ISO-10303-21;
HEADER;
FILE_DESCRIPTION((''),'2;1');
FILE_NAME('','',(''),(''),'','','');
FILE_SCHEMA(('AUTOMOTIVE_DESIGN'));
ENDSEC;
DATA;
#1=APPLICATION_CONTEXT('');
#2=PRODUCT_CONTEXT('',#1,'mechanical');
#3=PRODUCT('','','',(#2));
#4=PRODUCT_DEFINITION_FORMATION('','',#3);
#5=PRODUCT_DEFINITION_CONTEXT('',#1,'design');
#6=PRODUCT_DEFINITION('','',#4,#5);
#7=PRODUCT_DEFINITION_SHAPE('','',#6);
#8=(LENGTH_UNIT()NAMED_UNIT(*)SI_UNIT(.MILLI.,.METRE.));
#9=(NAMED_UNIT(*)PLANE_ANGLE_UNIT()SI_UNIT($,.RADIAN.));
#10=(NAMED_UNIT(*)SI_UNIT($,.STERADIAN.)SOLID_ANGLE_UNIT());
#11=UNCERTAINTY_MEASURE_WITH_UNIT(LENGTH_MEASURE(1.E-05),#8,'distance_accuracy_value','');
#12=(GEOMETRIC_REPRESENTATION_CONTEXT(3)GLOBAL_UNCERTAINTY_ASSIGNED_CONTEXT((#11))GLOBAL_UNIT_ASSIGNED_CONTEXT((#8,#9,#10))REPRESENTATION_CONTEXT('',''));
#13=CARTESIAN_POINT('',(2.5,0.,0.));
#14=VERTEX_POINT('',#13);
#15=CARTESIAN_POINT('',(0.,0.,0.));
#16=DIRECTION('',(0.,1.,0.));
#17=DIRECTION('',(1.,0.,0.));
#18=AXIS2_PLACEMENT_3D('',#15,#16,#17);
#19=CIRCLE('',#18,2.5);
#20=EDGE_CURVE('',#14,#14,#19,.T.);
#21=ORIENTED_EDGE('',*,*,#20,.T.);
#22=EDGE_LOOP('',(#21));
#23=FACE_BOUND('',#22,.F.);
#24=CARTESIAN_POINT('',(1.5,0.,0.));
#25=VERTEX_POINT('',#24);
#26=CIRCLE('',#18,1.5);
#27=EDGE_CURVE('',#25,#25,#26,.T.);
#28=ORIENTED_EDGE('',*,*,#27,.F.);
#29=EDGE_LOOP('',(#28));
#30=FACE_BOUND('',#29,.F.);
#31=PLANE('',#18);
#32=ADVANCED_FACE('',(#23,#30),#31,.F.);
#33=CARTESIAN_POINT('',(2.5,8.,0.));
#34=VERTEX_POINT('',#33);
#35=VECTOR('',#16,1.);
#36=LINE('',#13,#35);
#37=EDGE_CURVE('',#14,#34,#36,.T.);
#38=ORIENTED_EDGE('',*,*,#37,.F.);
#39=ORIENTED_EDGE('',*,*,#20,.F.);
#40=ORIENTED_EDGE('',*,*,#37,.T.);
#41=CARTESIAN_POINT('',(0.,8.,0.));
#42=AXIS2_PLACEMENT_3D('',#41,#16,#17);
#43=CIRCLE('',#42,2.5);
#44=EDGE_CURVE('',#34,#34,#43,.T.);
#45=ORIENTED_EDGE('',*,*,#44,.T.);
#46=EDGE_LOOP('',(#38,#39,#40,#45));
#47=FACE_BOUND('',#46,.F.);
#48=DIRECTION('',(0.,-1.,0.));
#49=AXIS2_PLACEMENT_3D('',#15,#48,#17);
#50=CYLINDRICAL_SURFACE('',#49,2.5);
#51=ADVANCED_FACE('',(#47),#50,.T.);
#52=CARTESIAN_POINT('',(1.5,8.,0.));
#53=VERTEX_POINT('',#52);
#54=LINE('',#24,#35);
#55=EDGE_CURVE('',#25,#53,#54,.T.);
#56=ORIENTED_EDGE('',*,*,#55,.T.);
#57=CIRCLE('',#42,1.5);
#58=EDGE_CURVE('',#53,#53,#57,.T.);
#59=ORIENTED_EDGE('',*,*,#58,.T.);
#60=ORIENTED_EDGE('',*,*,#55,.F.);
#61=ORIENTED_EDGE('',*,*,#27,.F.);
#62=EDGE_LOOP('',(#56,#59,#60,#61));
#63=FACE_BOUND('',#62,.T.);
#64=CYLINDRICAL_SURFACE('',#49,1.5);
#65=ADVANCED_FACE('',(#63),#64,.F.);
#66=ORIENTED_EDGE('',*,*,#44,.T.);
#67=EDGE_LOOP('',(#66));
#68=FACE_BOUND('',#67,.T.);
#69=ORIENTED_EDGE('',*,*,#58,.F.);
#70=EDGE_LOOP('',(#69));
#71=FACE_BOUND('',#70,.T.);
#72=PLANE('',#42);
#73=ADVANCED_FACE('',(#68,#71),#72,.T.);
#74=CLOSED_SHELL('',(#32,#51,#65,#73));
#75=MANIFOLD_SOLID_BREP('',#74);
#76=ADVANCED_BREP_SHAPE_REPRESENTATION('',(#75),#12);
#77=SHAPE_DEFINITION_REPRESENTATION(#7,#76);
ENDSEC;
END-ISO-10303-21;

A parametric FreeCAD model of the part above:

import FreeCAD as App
import Part
import Sketcher

V = App.Vector
Q = App.Units.Quantity

doc = App.newDocument("Part")
params = doc.addObject("Spreadsheet::Sheet", "Params")
for row, (alias, value) in enumerate([
    ("sketch1_diameter", "5 mm"),
    ("sketch1_diameter2", "3 mm"),
    ("pad1_length", "8 mm"),
], start=1):
    params.set(f"A{row}", alias)
    params.set(f"B{row}", "=" + value)
    params.setAlias(f"B{row}", alias)

body = doc.addObject("PartDesign::Body", "Body")

# Sketch on XZ plane
sketch1 = body.newObject("Sketcher::SketchObject", "Sketch")
sketch1.AttachmentSupport = (doc.getObject("XZ_Plane"), [""])
sketch1.MapMode = "FlatFace"
sketch1.addGeometry(Part.Circle(V(0, 0, 0), V(0, 0, 1), 2.5), False)
sketch1.addGeometry(Part.Circle(V(0, 0, 0), V(0, 0, 1), 1.5), False)
sketch1.addConstraint(Sketcher.Constraint("Coincident", 0, 3, -1, 1))
sketch1.addConstraint(Sketcher.Constraint("Coincident", 1, 3, -1, 1))
sketch1.addConstraint(Sketcher.Constraint("Diameter", 0, Q("5 mm")))
sketch1.addConstraint(Sketcher.Constraint("Diameter", 1, Q("3 mm")))
sketch1.setExpression("Constraints[2]", "Params.sketch1_diameter")
sketch1.setExpression("Constraints[3]", "Params.sketch1_diameter2")
pad1 = body.newObject("PartDesign::Pad", "Pad")
pad1.Profile = sketch1
pad1.setExpression("Length", "Params.pad1_length")
pad1.Reversed = True

doc.recompute()
